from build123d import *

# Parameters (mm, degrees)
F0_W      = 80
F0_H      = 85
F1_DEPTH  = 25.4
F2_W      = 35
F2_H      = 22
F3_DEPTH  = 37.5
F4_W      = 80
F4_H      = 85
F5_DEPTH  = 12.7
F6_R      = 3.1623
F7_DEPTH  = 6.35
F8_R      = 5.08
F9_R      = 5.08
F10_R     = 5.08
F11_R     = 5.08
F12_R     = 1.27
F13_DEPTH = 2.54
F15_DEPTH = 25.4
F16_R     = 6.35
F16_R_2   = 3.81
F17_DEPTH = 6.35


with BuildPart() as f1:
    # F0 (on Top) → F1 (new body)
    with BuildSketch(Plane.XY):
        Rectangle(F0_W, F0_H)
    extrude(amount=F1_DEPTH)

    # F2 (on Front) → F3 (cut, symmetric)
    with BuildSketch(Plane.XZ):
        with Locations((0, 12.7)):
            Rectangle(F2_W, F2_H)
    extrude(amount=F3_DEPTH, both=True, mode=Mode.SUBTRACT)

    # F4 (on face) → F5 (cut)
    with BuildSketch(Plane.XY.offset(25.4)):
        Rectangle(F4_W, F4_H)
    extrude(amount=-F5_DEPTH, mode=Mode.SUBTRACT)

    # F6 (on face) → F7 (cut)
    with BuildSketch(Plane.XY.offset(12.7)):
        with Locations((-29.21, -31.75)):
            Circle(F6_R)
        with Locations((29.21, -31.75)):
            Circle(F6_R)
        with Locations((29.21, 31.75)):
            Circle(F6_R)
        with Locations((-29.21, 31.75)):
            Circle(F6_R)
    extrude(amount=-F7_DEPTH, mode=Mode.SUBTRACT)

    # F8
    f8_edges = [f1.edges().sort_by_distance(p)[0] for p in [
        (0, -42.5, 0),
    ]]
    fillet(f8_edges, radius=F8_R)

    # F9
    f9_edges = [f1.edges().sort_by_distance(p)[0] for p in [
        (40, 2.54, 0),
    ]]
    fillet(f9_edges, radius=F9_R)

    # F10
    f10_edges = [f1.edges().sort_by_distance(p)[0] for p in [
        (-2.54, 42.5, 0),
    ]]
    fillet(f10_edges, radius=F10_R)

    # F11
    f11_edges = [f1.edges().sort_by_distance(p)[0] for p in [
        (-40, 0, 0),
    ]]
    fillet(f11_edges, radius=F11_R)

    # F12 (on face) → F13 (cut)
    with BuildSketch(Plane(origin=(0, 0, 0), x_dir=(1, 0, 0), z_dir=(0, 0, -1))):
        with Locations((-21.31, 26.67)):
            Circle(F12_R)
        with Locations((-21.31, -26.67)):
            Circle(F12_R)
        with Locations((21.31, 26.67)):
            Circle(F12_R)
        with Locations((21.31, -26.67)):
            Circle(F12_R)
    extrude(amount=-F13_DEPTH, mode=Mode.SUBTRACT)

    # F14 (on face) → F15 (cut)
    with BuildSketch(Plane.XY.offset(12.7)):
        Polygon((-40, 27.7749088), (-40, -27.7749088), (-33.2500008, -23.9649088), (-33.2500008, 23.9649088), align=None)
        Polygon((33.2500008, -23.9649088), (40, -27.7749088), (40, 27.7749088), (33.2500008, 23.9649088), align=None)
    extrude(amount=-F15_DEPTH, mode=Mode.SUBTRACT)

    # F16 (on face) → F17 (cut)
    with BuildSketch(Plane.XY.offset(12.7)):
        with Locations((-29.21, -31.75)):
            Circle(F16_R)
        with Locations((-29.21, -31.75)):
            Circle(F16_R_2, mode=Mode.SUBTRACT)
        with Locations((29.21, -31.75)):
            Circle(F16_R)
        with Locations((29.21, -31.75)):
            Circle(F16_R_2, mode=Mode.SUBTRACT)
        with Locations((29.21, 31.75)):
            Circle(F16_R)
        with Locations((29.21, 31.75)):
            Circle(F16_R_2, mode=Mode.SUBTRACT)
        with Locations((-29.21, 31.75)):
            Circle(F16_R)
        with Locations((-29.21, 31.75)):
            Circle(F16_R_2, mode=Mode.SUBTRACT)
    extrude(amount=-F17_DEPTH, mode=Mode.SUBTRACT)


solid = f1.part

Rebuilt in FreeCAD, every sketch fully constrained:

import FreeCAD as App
import Part
import Sketcher

V = App.Vector
Q = App.Units.Quantity


def edges_at(feature, points):
    """Names of the edges that pass closest to the given points."""
    edges = feature.Shape.Edges
    near = lambda p: min(range(len(edges)), key=lambda i: edges[i].distToShape(Part.Vertex(*p))[0])
    return sorted({f"Edge{near(p) + 1}" for p in points})

doc = App.newDocument("Part")
body = doc.addObject("PartDesign::Body", "Body")

sketch1 = body.newObject("Sketcher::SketchObject", "Sketch")
sketch1.AttachmentSupport = (doc.getObject("XY_Plane"), [""])
sketch1.MapMode = "FlatFace"
sketch1.addGeometry(Part.LineSegment(V(-40, 42.5, 0), V(-40, -42.5, 0)), False)
sketch1.addGeometry(Part.LineSegment(V(-40, -42.5, 0), V(40, -42.5, 0)), False)
sketch1.addGeometry(Part.LineSegment(V(40, -42.5, 0), V(40, 42.5, 0)), False)
sketch1.addGeometry(Part.LineSegment(V(40, 42.5, 0), V(-40, 42.5, 0)), False)
sketch1.addConstraint(Sketcher.Constraint("Coincident", 0, 2, 1, 1))
sketch1.addConstraint(Sketcher.Constraint("Coincident", 1, 2, 2, 1))
sketch1.addConstraint(Sketcher.Constraint("Coincident", 2, 2, 3, 1))
sketch1.addConstraint(Sketcher.Constraint("Coincident", 3, 2, 0, 1))
sketch1.addConstraint(Sketcher.Constraint("Vertical", 0))
sketch1.addConstraint(Sketcher.Constraint("Horizontal", 1))
sketch1.addConstraint(Sketcher.Constraint("Vertical", 2))
sketch1.addConstraint(Sketcher.Constraint("Horizontal", 3))
sketch1.addConstraint(Sketcher.Constraint("Symmetric", 0, 2, 2, 2, -1, 1))
sketch1.addConstraint(Sketcher.Constraint("DistanceX", 1, 1, 1, 2, Q("80 mm")))
sketch1.addConstraint(Sketcher.Constraint("DistanceY", 0, 2, 0, 1, Q("85 mm")))
pad1 = body.newObject("PartDesign::Pad", "Pad")
pad1.Profile = sketch1
pad1.Length = Q("1 in")

sketch2 = body.newObject("Sketcher::SketchObject", "Sketch001")
sketch2.AttachmentSupport = (doc.getObject("XZ_Plane"), [""])
sketch2.MapMode = "FlatFace"
sketch2.addGeometry(Part.LineSegment(V(-17.5, 23.7, 0), V(-17.5, 1.7, 0)), False)
sketch2.addGeometry(Part.LineSegment(V(-17.5, 1.7, 0), V(17.5, 1.7, 0)), False)
sketch2.addGeometry(Part.LineSegment(V(17.5, 1.7, 0), V(17.5, 23.7, 0)), False)
sketch2.addGeometry(Part.LineSegment(V(17.5, 23.7, 0), V(-17.5, 23.7, 0)), False)
sketch2.addConstraint(Sketcher.Constraint("Coincident", 0, 2, 1, 1))
sketch2.addConstraint(Sketcher.Constraint("Coincident", 1, 2, 2, 1))
sketch2.addConstraint(Sketcher.Constraint("Coincident", 2, 2, 3, 1))
sketch2.addConstraint(Sketcher.Constraint("Coincident", 3, 2, 0, 1))
sketch2.addConstraint(Sketcher.Constraint("Vertical", 0))
sketch2.addConstraint(Sketcher.Constraint("Horizontal", 1))
sketch2.addConstraint(Sketcher.Constraint("Vertical", 2))
sketch2.addConstraint(Sketcher.Constraint("Horizontal", 3))
sketch2.addConstraint(Sketcher.Constraint("DistanceX", 1, 1, 1, 2, Q("35 mm")))
sketch2.addConstraint(Sketcher.Constraint("DistanceY", 0, 2, 0, 1, Q("22 mm")))
sketch2.addConstraint(Sketcher.Constraint("DistanceX", 0, 2, -1, 1, Q("17.5 mm")))
sketch2.addConstraint(Sketcher.Constraint("DistanceY", -1, 1, 0, 2, Q("1.7 mm")))
pocket1 = body.newObject("PartDesign::Pocket", "Pocket")
pocket1.Profile = sketch2
pocket1.Length = 75
pocket1.Midplane = True

sketch3 = body.newObject("Sketcher::SketchObject", "Sketch002")
sketch3.AttachmentSupport = (doc.getObject("XY_Plane"), [""])
sketch3.MapMode = "FlatFace"
sketch3.AttachmentOffset = App.Placement(V(0, 0, 1 * 25.4), App.Rotation())
sketch3.addGeometry(Part.LineSegment(V(-40, 42.5, 0), V(-40, -42.5, 0)), False)
sketch3.addGeometry(Part.LineSegment(V(-40, -42.5, 0), V(40, -42.5, 0)), False)
sketch3.addGeometry(Part.LineSegment(V(40, -42.5, 0), V(40, 42.5, 0)), False)
sketch3.addGeometry(Part.LineSegment(V(40, 42.5, 0), V(-40, 42.5, 0)), False)
sketch3.addConstraint(Sketcher.Constraint("Coincident", 0, 2, 1, 1))
sketch3.addConstraint(Sketcher.Constraint("Coincident", 1, 2, 2, 1))
sketch3.addConstraint(Sketcher.Constraint("Coincident", 2, 2, 3, 1))
sketch3.addConstraint(Sketcher.Constraint("Coincident", 3, 2, 0, 1))
sketch3.addConstraint(Sketcher.Constraint("Vertical", 0))
sketch3.addConstraint(Sketcher.Constraint("Horizontal", 1))
sketch3.addConstraint(Sketcher.Constraint("Vertical", 2))
sketch3.addConstraint(Sketcher.Constraint("Horizontal", 3))
sketch3.addConstraint(Sketcher.Constraint("Symmetric", 0, 2, 2, 2, -1, 1))
sketch3.addConstraint(Sketcher.Constraint("DistanceX", 1, 1, 1, 2, Q("80 mm")))
sketch3.addConstraint(Sketcher.Constraint("DistanceY", 0, 2, 0, 1, Q("85 mm")))
pocket2 = body.newObject("PartDesign::Pocket", "Pocket001")
pocket2.Profile = sketch3
pocket2.Length = Q("0.5 in")

sketch4 = body.newObject("Sketcher::SketchObject", "Sketch003")
sketch4.AttachmentSupport = (doc.getObject("XY_Plane"), [""])
sketch4.MapMode = "FlatFace"
sketch4.AttachmentOffset = App.Placement(V(0, 0, 0.5 * 25.4), App.Rotation())
sketch4.addGeometry(Part.Circle(V(-29.21, -31.75, 0), V(0, 0, 1), 3.1623), False)
sketch4.addGeometry(Part.Circle(V(29.21, -31.75, 0), V(0, 0, 1), 3.1623), False)
sketch4.addGeometry(Part.Circle(V(29.21, 31.75, 0), V(0, 0, 1), 3.1623), False)
sketch4.addGeometry(Part.Circle(V(-29.21, 31.75, 0), V(0, 0, 1), 3.1623), False)
sketch4.addConstraint(Sketcher.Constraint("Equal", 0, 1))
sketch4.addConstraint(Sketcher.Constraint("Equal", 1, 2))
sketch4.addConstraint(Sketcher.Constraint("Equal", 2, 3))
sketch4.addConstraint(Sketcher.Constraint("Symmetric", 0, 3, 2, 3, -1, 1))
sketch4.addConstraint(Sketcher.Constraint("Symmetric", 1, 3, 3, 3, -1, 1))
sketch4.addConstraint(Sketcher.Constraint("Symmetric", 0, 3, 1, 3, -2))
sketch4.addConstraint(Sketcher.Constraint("Diameter", 0, Q("0.249 in")))
sketch4.addConstraint(Sketcher.Constraint("DistanceX", 0, 3, 1, 3, Q("2.3 in")))
sketch4.addConstraint(Sketcher.Constraint("DistanceY", 1, 3, 2, 3, Q("2.5 in")))
pocket3 = body.newObject("PartDesign::Pocket", "Pocket002")
pocket3.Profile = sketch4
pocket3.Length = Q("0.25 in")
doc.recompute()

fillet = body.newObject("PartDesign::Fillet", "Fillet")
fillet.Base = (pocket3, edges_at(pocket3, [(0, -42.5, 0)]))
fillet.Radius = Q("0.2 in")
doc.recompute()

fillet2 = body.newObject("PartDesign::Fillet", "Fillet001")
fillet2.Base = (fillet, edges_at(fillet, [(40, 2.54, 0)]))
fillet2.Radius = Q("0.2 in")
doc.recompute()

fillet3 = body.newObject("PartDesign::Fillet", "Fillet002")
fillet3.Base = (fillet2, edges_at(fillet2, [(-2.54, 42.5, 0)]))
fillet3.Radius = Q("0.2 in")
doc.recompute()

fillet4 = body.newObject("PartDesign::Fillet", "Fillet003")
fillet4.Base = (fillet3, edges_at(fillet3, [(-40, 0, 0)]))
fillet4.Radius = Q("0.2 in")

sketch5 = body.newObject("Sketcher::SketchObject", "Sketch004")
sketch5.AttachmentSupport = (doc.getObject("XY_Plane"), [""])
sketch5.MapMode = "FlatFace"
sketch5.addGeometry(Part.Circle(V(-21.31, -26.67, 0), V(0, 0, 1), 1.27), False)
sketch5.addGeometry(Part.Circle(V(-21.31, 26.67, 0), V(0, 0, 1), 1.27), False)
sketch5.addGeometry(Part.Circle(V(21.31, -26.67, 0), V(0, 0, 1), 1.27), False)
sketch5.addGeometry(Part.Circle(V(21.31, 26.67, 0), V(0, 0, 1), 1.27), False)
sketch5.addConstraint(Sketcher.Constraint("Equal", 0, 1))
sketch5.addConstraint(Sketcher.Constraint("Equal", 1, 2))
sketch5.addConstraint(Sketcher.Constraint("Equal", 2, 3))
sketch5.addConstraint(Sketcher.Constraint("Symmetric", 1, 3, 2, 3, -1, 1))
sketch5.addConstraint(Sketcher.Constraint("Symmetric", 0, 3, 3, 3, -1, 1))
sketch5.addConstraint(Sketcher.Constraint("Symmetric", 0, 3, 2, 3, -2))
sketch5.addConstraint(Sketcher.Constraint("Diameter", 0, Q("0.1 in")))
sketch5.addConstraint(Sketcher.Constraint("DistanceY", 0, 3, 1, 3, Q("2.1 in")))
sketch5.addConstraint(Sketcher.Constraint("DistanceX", 0, 3, -1, 1, Q("21.31 mm")))
pocket4 = body.newObject("PartDesign::Pocket", "Pocket003")
pocket4.Profile = sketch5
pocket4.Length = Q("0.1 in")
pocket4.Reversed = True

sketch6 = body.newObject("Sketcher::SketchObject", "Sketch005")
sketch6.AttachmentSupport = (doc.getObject("XY_Plane"), [""])
sketch6.MapMode = "FlatFace"
sketch6.AttachmentOffset = App.Placement(V(0, 0, 0.5 * 25.4), App.Rotation())
sketch6.addGeometry(Part.LineSegment(V(-40, 27.774909, 0), V(-40, -27.774909, 0)), False)
sketch6.addGeometry(Part.LineSegment(V(-40, -27.774909, 0), V(-33.250001, -23.964909, 0)), False)
sketch6.addGeometry(Part.LineSegment(V(-33.250001, -23.964909, 0), V(-33.250001, 23.964909, 0)), False)
sketch6.addGeometry(Part.LineSegment(V(-33.250001, 23.964909, 0), V(-40, 27.774909, 0)), False)
sketch6.addGeometry(Part.LineSegment(V(33.250001, -23.964909, 0), V(40, -27.774909, 0)), False)
sketch6.addGeometry(Part.LineSegment(V(40, -27.774909, 0), V(40, 27.774909, 0)), False)
sketch6.addGeometry(Part.LineSegment(V(40, 27.774909, 0), V(33.250001, 23.964909, 0)), False)
sketch6.addGeometry(Part.LineSegment(V(33.250001, 23.964909, 0), V(33.250001, -23.964909, 0)), False)
sketch6.addConstraint(Sketcher.Constraint("Coincident", 0, 2, 1, 1))
sketch6.addConstraint(Sketcher.Constraint("Coincident", 1, 2, 2, 1))
sketch6.addConstraint(Sketcher.Constraint("Coincident", 2, 2, 3, 1))
sketch6.addConstraint(Sketcher.Constraint("Coincident", 3, 2, 0, 1))
sketch6.addConstraint(Sketcher.Constraint("Coincident", 4, 2, 5, 1))
sketch6.addConstraint(Sketcher.Constraint("Coincident", 5, 2, 6, 1))
sketch6.addConstraint(Sketcher.Constraint("Coincident", 6, 2, 7, 1))
sketch6.addConstraint(Sketcher.Constraint("Coincident", 7, 2, 4, 1))
sketch6.addConstraint(Sketcher.Constraint("Vertical", 0))
sketch6.addConstraint(Sketcher.Constraint("Vertical", 2))
sketch6.addConstraint(Sketcher.Constraint("Vertical", 5))
sketch6.addConstraint(Sketcher.Constraint("Vertical", 7))
sketch6.addConstraint(Sketcher.Constraint("Symmetric", 3, 2, 4, 2, -1, 1))
sketch6.addConstraint(Sketcher.Constraint("Symmetric", 1, 2, 6, 2, -1, 1))
sketch6.addConstraint(Sketcher.Constraint("Parallel", 3, 4))
sketch6.addConstraint(Sketcher.Constraint("Parallel", 1, 6))
sketch6.addConstraint(Sketcher.Constraint("Horizontal", 0, 2, 4, 2))
sketch6.addConstraint(Sketcher.Constraint("Horizontal", 2, 2, 6, 2))
sketch6.addConstraint(Sketcher.Constraint("DistanceY", 0, 2, 1, 2, Q("0.15 in")))
sketch6.addConstraint(Sketcher.Constraint("DistanceX", 0, 2, -1, 1, Q("40 mm")))
sketch6.addConstraint(Sketcher.Constraint("DistanceX", 1, 2, -1, 1, Q("33.250001 mm")))
sketch6.addConstraint(Sketcher.Constraint("DistanceY", 0, 2, 0, 1, Q("55.549818 mm")))
pocket5 = body.newObject("PartDesign::Pocket", "Pocket004")
pocket5.Profile = sketch6
pocket5.Length = Q("1 in")

sketch7 = body.newObject("Sketcher::SketchObject", "Sketch006")
sketch7.AttachmentSupport = (doc.getObject("XY_Plane"), [""])
sketch7.MapMode = "FlatFace"
sketch7.AttachmentOffset = App.Placement(V(0, 0, 0.5 * 25.4), App.Rotation())
sketch7.addGeometry(Part.Circle(V(-29.21, -31.75, 0), V(0, 0, 1), 6.35), False)
sketch7.addGeometry(Part.Circle(V(-29.21, -31.75, 0), V(0, 0, 1), 3.81), False)
sketch7.addGeometry(Part.Circle(V(29.21, -31.75, 0), V(0, 0, 1), 6.35), False)
sketch7.addGeometry(Part.Circle(V(29.21, -31.75, 0), V(0, 0, 1), 3.81), False)
sketch7.addGeometry(Part.Circle(V(29.21, 31.75, 0), V(0, 0, 1), 6.35), False)
sketch7.addGeometry(Part.Circle(V(29.21, 31.75, 0), V(0, 0, 1), 3.81), False)
sketch7.addGeometry(Part.Circle(V(-29.21, 31.75, 0), V(0, 0, 1), 6.35), False)
sketch7.addGeometry(Part.Circle(V(-29.21, 31.75, 0), V(0, 0, 1), 3.81), False)
sketch7.addConstraint(Sketcher.Constraint("Coincident", 1, 3, 0, 3))
sketch7.addConstraint(Sketcher.Constraint("Coincident", 3, 3, 2, 3))
sketch7.addConstraint(Sketcher.Constraint("Coincident", 5, 3, 4, 3))
sketch7.addConstraint(Sketcher.Constraint("Coincident", 7, 3, 6, 3))
sketch7.addConstraint(Sketcher.Constraint("Equal", 0, 2))
sketch7.addConstraint(Sketcher.Constraint("Equal", 1, 3))
sketch7.addConstraint(Sketcher.Constraint("Equal", 2, 4))
sketch7.addConstraint(Sketcher.Constraint("Equal", 3, 5))
sketch7.addConstraint(Sketcher.Constraint("Equal", 4, 6))
sketch7.addConstraint(Sketcher.Constraint("Equal", 5, 7))
sketch7.addConstraint(Sketcher.Constraint("Symmetric", 0, 3, 4, 3, -1, 1))
sketch7.addConstraint(Sketcher.Constraint("Symmetric", 2, 3, 6, 3, -1, 1))
sketch7.addConstraint(Sketcher.Constraint("Symmetric", 0, 3, 2, 3, -2))
sketch7.addConstraint(Sketcher.Constraint("Diameter", 0, Q("0.5 in")))
sketch7.addConstraint(Sketcher.Constraint("Diameter", 1, Q("0.3 in")))
sketch7.addConstraint(Sketcher.Constraint("DistanceX", 0, 3, 2, 3, Q("2.3 in")))
sketch7.addConstraint(Sketcher.Constraint("DistanceY", 2, 3, 4, 3, Q("2.5 in")))
pocket6 = body.newObject("PartDesign::Pocket", "Pocket005")
pocket6.Profile = sketch7
pocket6.Length = Q("0.25 in")

doc.recompute()
